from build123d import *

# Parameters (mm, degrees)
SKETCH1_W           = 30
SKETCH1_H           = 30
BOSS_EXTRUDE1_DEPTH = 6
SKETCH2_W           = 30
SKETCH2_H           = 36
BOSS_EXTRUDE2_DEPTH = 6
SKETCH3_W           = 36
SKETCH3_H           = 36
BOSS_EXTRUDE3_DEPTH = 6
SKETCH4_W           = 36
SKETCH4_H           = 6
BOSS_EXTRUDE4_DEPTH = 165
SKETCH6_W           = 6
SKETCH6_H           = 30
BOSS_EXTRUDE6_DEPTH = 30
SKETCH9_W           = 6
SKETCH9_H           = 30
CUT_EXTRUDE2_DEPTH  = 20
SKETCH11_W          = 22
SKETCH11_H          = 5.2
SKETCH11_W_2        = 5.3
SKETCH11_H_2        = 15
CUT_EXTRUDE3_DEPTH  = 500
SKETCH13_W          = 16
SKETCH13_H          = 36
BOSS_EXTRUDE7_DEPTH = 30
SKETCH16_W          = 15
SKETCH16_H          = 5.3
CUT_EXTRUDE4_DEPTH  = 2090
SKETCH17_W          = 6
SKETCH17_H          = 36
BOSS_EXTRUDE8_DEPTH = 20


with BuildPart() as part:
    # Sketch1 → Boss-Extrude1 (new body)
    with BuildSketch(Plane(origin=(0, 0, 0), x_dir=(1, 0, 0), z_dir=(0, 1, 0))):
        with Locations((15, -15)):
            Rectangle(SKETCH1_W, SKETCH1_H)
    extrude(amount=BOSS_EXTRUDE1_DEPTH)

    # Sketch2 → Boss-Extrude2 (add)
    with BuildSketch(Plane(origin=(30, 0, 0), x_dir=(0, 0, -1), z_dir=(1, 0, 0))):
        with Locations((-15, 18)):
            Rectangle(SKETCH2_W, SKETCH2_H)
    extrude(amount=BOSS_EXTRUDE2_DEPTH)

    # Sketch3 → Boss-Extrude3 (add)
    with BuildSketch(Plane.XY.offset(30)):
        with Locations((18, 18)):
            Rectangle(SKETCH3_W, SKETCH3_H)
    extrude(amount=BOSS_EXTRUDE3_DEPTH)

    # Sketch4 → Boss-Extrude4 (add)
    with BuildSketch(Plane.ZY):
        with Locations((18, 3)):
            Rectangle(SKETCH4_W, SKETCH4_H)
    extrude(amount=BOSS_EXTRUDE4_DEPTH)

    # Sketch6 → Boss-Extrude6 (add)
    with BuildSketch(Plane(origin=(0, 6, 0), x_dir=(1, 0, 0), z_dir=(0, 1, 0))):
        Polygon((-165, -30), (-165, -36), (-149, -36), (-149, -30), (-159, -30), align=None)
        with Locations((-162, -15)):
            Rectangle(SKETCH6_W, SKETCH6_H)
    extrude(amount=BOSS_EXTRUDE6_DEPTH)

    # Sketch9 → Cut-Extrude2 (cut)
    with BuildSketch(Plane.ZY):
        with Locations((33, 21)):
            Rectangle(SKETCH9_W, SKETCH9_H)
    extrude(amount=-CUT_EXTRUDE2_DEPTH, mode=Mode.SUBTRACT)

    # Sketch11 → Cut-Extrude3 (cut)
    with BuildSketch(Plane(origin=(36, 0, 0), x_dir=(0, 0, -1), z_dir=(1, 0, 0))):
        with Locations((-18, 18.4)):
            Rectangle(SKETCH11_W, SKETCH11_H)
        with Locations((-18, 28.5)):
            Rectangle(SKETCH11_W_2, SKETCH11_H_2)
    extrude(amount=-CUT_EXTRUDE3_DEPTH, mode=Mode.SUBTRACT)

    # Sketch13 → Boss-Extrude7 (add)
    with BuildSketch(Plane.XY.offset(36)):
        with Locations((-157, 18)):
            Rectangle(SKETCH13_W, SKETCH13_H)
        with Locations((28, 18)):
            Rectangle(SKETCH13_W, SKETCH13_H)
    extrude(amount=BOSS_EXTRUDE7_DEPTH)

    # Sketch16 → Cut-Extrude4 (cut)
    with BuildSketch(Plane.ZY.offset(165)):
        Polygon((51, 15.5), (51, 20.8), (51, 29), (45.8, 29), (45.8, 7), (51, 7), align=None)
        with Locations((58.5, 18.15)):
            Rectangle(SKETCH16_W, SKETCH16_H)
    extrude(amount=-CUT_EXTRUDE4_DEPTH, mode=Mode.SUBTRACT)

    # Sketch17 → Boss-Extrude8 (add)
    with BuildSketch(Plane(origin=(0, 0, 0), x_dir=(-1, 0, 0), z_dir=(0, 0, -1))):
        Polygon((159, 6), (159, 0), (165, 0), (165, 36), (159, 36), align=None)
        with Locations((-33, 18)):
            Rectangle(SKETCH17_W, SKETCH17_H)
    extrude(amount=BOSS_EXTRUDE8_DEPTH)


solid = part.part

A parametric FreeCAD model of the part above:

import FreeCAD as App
import Part
import Sketcher
from FreeCAD import Vector
Q = App.Units.Quantity

doc = App.newDocument("Part")
params = doc.addObject("Spreadsheet::Sheet", "Params")
for row, (alias, value) in enumerate([
    ("sketch1_width", "30 mm"),
    ("pad1_length", "6 mm"),
    ("sketch2_width", "36 mm"),
    ("sketch2_height", "30 mm"),
    ("pad2_length", "6 mm"),
    ("sketch3_width", "36 mm"),
    ("pad3_length", "6 mm"),
    ("sketch4_width", "6 mm"),
    ("sketch4_height", "36 mm"),
    ("pad4_length", "165 mm"),
    ("sketch5_width", "16 mm"),
    ("sketch5_width2", "10 mm"),
    ("sketch5_height", "30 mm"),
    ("pad5_length", "30 mm"),
    ("sketch6_width", "30 mm"),
    ("sketch6_height", "6 mm"),
    ("pocket1_length", "20 mm"),
    ("sketch7_width", "15 mm"),
    ("sketch7_height", "22 mm"),
    ("sketch7_width2", "5.2 mm"),
    ("sketch7_height2", "5.3 mm"),
    ("pocket2_length", "500 mm"),
    ("sketch8_width", "16 mm"),
    ("sketch8_height", "36 mm"),
    ("pad6_length", "30 mm"),
    ("sketch9_width", "22 mm"),
    ("sketch9_height", "15 mm"),
    ("sketch9_width2", "8.5 mm"),
    ("sketch9_width3", "5.3 mm"),
    ("sketch9_height2", "5.2 mm"),
    ("pocket3_length", "2090 mm"),
    ("sketch10_width", "6 mm"),
    ("sketch10_height", "36 mm"),
    ("pad7_length", "20 mm"),
], start=1):
    params.set(f"A{row}", alias)
    params.set(f"B{row}", "=" + value)
    params.setAlias(f"B{row}", alias)

body = doc.addObject("PartDesign::Body", "Body")

# Sketch on XZ plane
sketch1 = body.newObject("Sketcher::SketchObject", "Sketch")
sketch1.AttachmentSupport = (doc.getObject("XZ_Plane"), [""])
sketch1.MapMode = "FlatFace"
sketch1.addGeometry([
    Part.LineSegment(Vector(0, 0, 0), Vector(0, 30, 0)),
    Part.LineSegment(Vector(0, 30, 0), Vector(30, 30, 0)),
    Part.LineSegment(Vector(30, 30, 0), Vector(30, 0, 0)),
    Part.LineSegment(Vector(30, 0, 0), Vector(0, 0, 0)),
], False)
sketch1.addConstraint([
    Sketcher.Constraint("Coincident", 0, 2, 1, 1),
    Sketcher.Constraint("Coincident", 1, 2, 2, 1),
    Sketcher.Constraint("Coincident", 2, 2, 3, 1),
    Sketcher.Constraint("Coincident", 3, 2, 0, 1),
    Sketcher.Constraint("Vertical", 0),
    Sketcher.Constraint("Horizontal", 1),
    Sketcher.Constraint("Vertical", 2),
    Sketcher.Constraint("Horizontal", 3),
    Sketcher.Constraint("Coincident", 3, 2, -1, 1),
    Sketcher.Constraint("Equal", 3, 0),
    Sketcher.Constraint("DistanceX", 1, 1, 1, 2, Q("30 mm")),
])
sketch1.setExpression("Constraints[10]", "Params.sketch1_width")
pad1 = body.newObject("PartDesign::Pad", "Pad")
pad1.Profile = sketch1
pad1.setExpression("Length", "Params.pad1_length")
pad1.Reversed = True

# Sketch on YZ plane
sketch2 = body.newObject("Sketcher::SketchObject", "Sketch001")
sketch2.AttachmentSupport = (doc.getObject("YZ_Plane"), [""])
sketch2.MapMode = "FlatFace"
sketch2.AttachmentOffset = App.Placement(Vector(0, 0, 30), App.Rotation())
sketch2.addGeometry([
    Part.LineSegment(Vector(36, 30, 0), Vector(0, 30, 0)),
    Part.LineSegment(Vector(0, 30, 0), Vector(0, 0, 0)),
    Part.LineSegment(Vector(0, 0, 0), Vector(36, 0, 0)),
    Part.LineSegment(Vector(36, 0, 0), Vector(36, 30, 0)),
], False)
sketch2.addConstraint([
    Sketcher.Constraint("Coincident", 0, 2, 1, 1),
    Sketcher.Constraint("Coincident", 1, 2, 2, 1),
    Sketcher.Constraint("Coincident", 2, 2, 3, 1),
    Sketcher.Constraint("Coincident", 3, 2, 0, 1),
    Sketcher.Constraint("Horizontal", 0),
    Sketcher.Constraint("Vertical", 1),
    Sketcher.Constraint("Horizontal", 2),
    Sketcher.Constraint("Vertical", 3),
    Sketcher.Constraint("Coincident", 1, 2, -1, 1),
    Sketcher.Constraint("DistanceX", 0, 2, 0, 1, Q("36 mm")),
    Sketcher.Constraint("DistanceY", 1, 2, 1, 1, Q("30 mm")),
])
sketch2.setExpression("Constraints[9]", "Params.sketch2_width")
sketch2.setExpression("Constraints[10]", "Params.sketch2_height")
pad2 = body.newObject("PartDesign::Pad", "Pad001")
pad2.Profile = sketch2
pad2.setExpression("Length", "Params.pad2_length")

# Sketch on XY plane
sketch3 = body.newObject("Sketcher::SketchObject", "Sketch002")
sketch3.AttachmentSupport = (doc.getObject("XY_Plane"), [""])
sketch3.MapMode = "FlatFace"
sketch3.AttachmentOffset = App.Placement(Vector(0, 0, 30), App.Rotation())
sketch3.addGeometry([
    Part.LineSegment(Vector(0, 36, 0), Vector(0, 0, 0)),
    Part.LineSegment(Vector(0, 0, 0), Vector(36, 0, 0)),
    Part.LineSegment(Vector(36, 0, 0), Vector(36, 36, 0)),
    Part.LineSegment(Vector(36, 36, 0), Vector(0, 36, 0)),
], False)
sketch3.addConstraint([
    Sketcher.Constraint("Coincident", 0, 2, 1, 1),
    Sketcher.Constraint("Coincident", 1, 2, 2, 1),
    Sketcher.Constraint("Coincident", 2, 2, 3, 1),
    Sketcher.Constraint("Coincident", 3, 2, 0, 1),
    Sketcher.Constraint("Vertical", 0),
    Sketcher.Constraint("Horizontal", 1),
    Sketcher.Constraint("Vertical", 2),
    Sketcher.Constraint("Horizontal", 3),
    Sketcher.Constraint("Coincident", 0, 2, -1, 1),
    Sketcher.Constraint("Equal", 3, 0),
    Sketcher.Constraint("DistanceX", 1, 1, 1, 2, Q("36 mm")),
])
sketch3.setExpression("Constraints[10]", "Params.sketch3_width")
pad3 = body.newObject("PartDesign::Pad", "Pad002")
pad3.Profile = sketch3
pad3.setExpression("Length", "Params.pad3_length")

# Sketch on YZ plane
sketch4 = body.newObject("Sketcher::SketchObject", "Sketch003")
sketch4.AttachmentSupport = (doc.getObject("YZ_Plane"), [""])
sketch4.MapMode = "FlatFace"
sketch4.addGeometry([
    Part.LineSegment(Vector(6, 0, 0), Vector(0, 0, 0)),
    Part.LineSegment(Vector(0, 0, 0), Vector(0, 36, 0)),
    Part.LineSegment(Vector(0, 36, 0), Vector(6, 36, 0)),
    Part.LineSegment(Vector(6, 36, 0), Vector(6, 0, 0)),
], False)
sketch4.addConstraint([
    Sketcher.Constraint("Coincident", 0, 2, 1, 1),
    Sketcher.Constraint("Coincident", 1, 2, 2, 1),
    Sketcher.Constraint("Coincident", 2, 2, 3, 1),
    Sketcher.Constraint("Coincident", 3, 2, 0, 1),
    Sketcher.Constraint("Horizontal", 0),
    Sketcher.Constraint("Vertical", 1),
    Sketcher.Constraint("Horizontal", 2),
    Sketcher.Constraint("Vertical", 3),
    Sketcher.Constraint("Coincident", 0, 2, -1, 1),
    Sketcher.Constraint("DistanceX", 0, 2, 0, 1, Q("6 mm")),
    Sketcher.Constraint("DistanceY", 1, 1, 1, 2, Q("36 mm")),
])
sketch4.setExpression("Constraints[9]", "Params.sketch4_width")
sketch4.setExpression("Constraints[10]", "Params.sketch4_height")
pad4 = body.newObject("PartDesign::Pad", "Pad003")
pad4.Profile = sketch4
pad4.setExpression("Length", "Params.pad4_length")
pad4.Reversed = True

# Sketch on XZ plane
sketch5 = body.newObject("Sketcher::SketchObject", "Sketch004")
sketch5.AttachmentSupport = (doc.getObject("XZ_Plane"), [""])
sketch5.MapMode = "FlatFace"
sketch5.AttachmentOffset = App.Placement(Vector(0, 0, -6), App.Rotation())
sketch5.addGeometry([
    Part.LineSegment(Vector(-165, 36, 0), Vector(-149, 36, 0)),  # 0
    Part.LineSegment(Vector(-149, 36, 0), Vector(-149, 30, 0)),  # 1
    Part.LineSegment(Vector(-149, 30, 0), Vector(-159, 30, 0)),  # 2
    Part.LineSegment(Vector(-159, 30, 0), Vector(-159, 0, 0)),  # 3
    Part.LineSegment(Vector(-159, 0, 0), Vector(-165, 0, 0)),  # 4
    Part.LineSegment(Vector(-165, 0, 0), Vector(-165, 36, 0)),  # 5
], False)
sketch5.addConstraint([
    Sketcher.Constraint("Coincident", 0, 2, 1, 1),
    Sketcher.Constraint("Coincident", 1, 2, 2, 1),
    Sketcher.Constraint("Coincident", 2, 2, 3, 1),
    Sketcher.Constraint("Coincident", 3, 2, 4, 1),
    Sketcher.Constraint("Coincident", 4, 2, 5, 1),
    Sketcher.Constraint("Coincident", 5, 2, 0, 1),
    Sketcher.Constraint("Horizontal", 0),
    Sketcher.Constraint("Vertical", 1),
    Sketcher.Constraint("Horizontal", 2),
    Sketcher.Constraint("Vertical", 3),
    Sketcher.Constraint("Horizontal", 4),
    Sketcher.Constraint("Vertical", 5),
    Sketcher.Constraint("PointOnObject", 3, 2, -1),
    Sketcher.Constraint("Equal", 4, 1),
    Sketcher.Constraint("DistanceX", 0, 1, 0, 2, Q("16 mm")),
    Sketcher.Constraint("DistanceX", 2, 2, 2, 1, Q("10 mm")),
    Sketcher.Constraint("DistanceY", 3, 2, 3, 1, Q("30 mm")),
    Sketcher.Constraint("DistanceX", 0, 2, -1, 1, Q("149 mm")),
])
sketch5.setExpression("Constraints[14]", "Params.sketch5_width")
sketch5.setExpression("Constraints[15]", "Params.sketch5_width2")
sketch5.setExpression("Constraints[16]", "Params.sketch5_height")
pad5 = body.newObject("PartDesign::Pad", "Pad004")
pad5.Profile = sketch5
pad5.setExpression("Length", "Params.pad5_length")
pad5.Reversed = True

# Sketch on YZ plane
sketch6 = body.newObject("Sketcher::SketchObject", "Sketch005")
sketch6.AttachmentSupport = (doc.getObject("YZ_Plane"), [""])
sketch6.MapMode = "FlatFace"
sketch6.addGeometry([
    Part.LineSegment(Vector(36, 30, 0), Vector(6, 30, 0)),
    Part.LineSegment(Vector(6, 30, 0), Vector(6, 36, 0)),
    Part.LineSegment(Vector(6, 36, 0), Vector(36, 36, 0)),
    Part.LineSegment(Vector(36, 36, 0), Vector(36, 30, 0)),
], False)
sketch6.addConstraint([
    Sketcher.Constraint("Coincident", 0, 2, 1, 1),
    Sketcher.Constraint("Coincident", 1, 2, 2, 1),
    Sketcher.Constraint("Coincident", 2, 2, 3, 1),
    Sketcher.Constraint("Coincident", 3, 2, 0, 1),
    Sketcher.Constraint("Horizontal", 0),
    Sketcher.Constraint("Vertical", 1),
    Sketcher.Constraint("Horizontal", 2),
    Sketcher.Constraint("Vertical", 3),
    Sketcher.Constraint("DistanceX", 0, 2, 0, 1, Q("30 mm")),
    Sketcher.Constraint("DistanceY", 1, 1, 1, 2, Q("6 mm")),
    Sketcher.Constraint("DistanceX", -1, 1, 0, 2, Q("6 mm")),
    Sketcher.Constraint("DistanceY", -1, 1, 0, 2, Q("30 mm")),
])
sketch6.setExpression("Constraints[8]", "Params.sketch6_width")
sketch6.setExpression("Constraints[9]", "Params.sketch6_height")
pocket1 = body.newObject("PartDesign::Pocket", "Pocket")
pocket1.Profile = sketch6
pocket1.setExpression("Length", "Params.pocket1_length")
pocket1.Reversed = True

# Sketch on YZ plane
sketch7 = body.newObject("Sketcher::SketchObject", "Sketch006")
sketch7.AttachmentSupport = (doc.getObject("YZ_Plane"), [""])
sketch7.MapMode = "FlatFace"
sketch7.AttachmentOffset = App.Placement(Vector(0, 0, 36), App.Rotation())
sketch7.addGeometry([
    Part.LineSegment(Vector(21, 29, 0), Vector(16, 29, 0)),  # 0
    Part.LineSegment(Vector(16, 29, 0), Vector(16, 7, 0)),  # 1
    Part.LineSegment(Vector(16, 7, 0), Vector(21, 7, 0)),  # 2
    Part.LineSegment(Vector(21, 7, 0), Vector(21, 15, 0)),  # 3
    Part.LineSegment(Vector(21, 15, 0), Vector(36, 15, 0)),  # 4
    Part.LineSegment(Vector(36, 15, 0), Vector(36, 21, 0)),  # 5
    Part.LineSegment(Vector(36, 21, 0), Vector(21, 21, 0)),  # 6
    Part.LineSegment(Vector(21, 21, 0), Vector(21, 29, 0)),  # 7
], False)
sketch7.addConstraint([
    Sketcher.Constraint("Coincident", 0, 2, 1, 1),
    Sketcher.Constraint("Coincident", 1, 2, 2, 1),
    Sketcher.Constraint("Coincident", 2, 2, 3, 1),
    Sketcher.Constraint("Coincident", 3, 2, 4, 1),
    Sketcher.Constraint("Coincident", 4, 2, 5, 1),
    Sketcher.Constraint("Coincident", 5, 2, 6, 1),
    Sketcher.Constraint("Coincident", 6, 2, 7, 1),
    Sketcher.Constraint("Coincident", 7, 2, 0, 1),
    Sketcher.Constraint("Horizontal", 0),
    Sketcher.Constraint("Vertical", 1),
    Sketcher.Constraint("Horizontal", 2),
    Sketcher.Constraint("Vertical", 3),
    Sketcher.Constraint("Horizontal", 4),
    Sketcher.Constraint("Vertical", 5),
    Sketcher.Constraint("Horizontal", 6),
    Sketcher.Constraint("Vertical", 7),
    Sketcher.Constraint("Vertical", 3, 2, 6, 2),
    Sketcher.Constraint("Equal", 3, 7),
    Sketcher.Constraint("DistanceX", 4, 1, 4, 2, Q("15 mm")),
    Sketcher.Constraint("DistanceY", 1, 2, 1, 1, Q("22 mm")),
    Sketcher.Constraint("DistanceX", 0, 2, 0, 1, Q("5.2 mm")),
    Sketcher.Constraint("DistanceY", 5, 1, 5, 2, Q("5.3 mm")),
    Sketcher.Constraint("DistanceY", -1, 1, 0, 2, Q("29 mm")),
    Sketcher.Constraint("DistanceX", -1, 1, 2, 2, Q("21 mm")),
])
sketch7.setExpression("Constraints[18]", "Params.sketch7_width")
sketch7.setExpression("Constraints[19]", "Params.sketch7_height")
sketch7.setExpression("Constraints[20]", "Params.sketch7_width2")
sketch7.setExpression("Constraints[21]", "Params.sketch7_height2")
pocket2 = body.newObject("PartDesign::Pocket", "Pocket001")
pocket2.Profile = sketch7
pocket2.setExpression("Length", "Params.pocket2_length")

# Sketch on XY plane
sketch8 = body.newObject("Sketcher::SketchObject", "Sketch007")
sketch8.AttachmentSupport = (doc.getObject("XY_Plane"), [""])
sketch8.MapMode = "FlatFace"
sketch8.AttachmentOffset = App.Placement(Vector(0, 0, 36), App.Rotation())
sketch8.addGeometry([
    Part.LineSegment(Vector(-165, 36, 0), Vector(-165, 0, 0)),  # 0
    Part.LineSegment(Vector(-165, 0, 0), Vector(-149, 0, 0)),  # 1
    Part.LineSegment(Vector(-149, 0, 0), Vector(-149, 36, 0)),  # 2
    Part.LineSegment(Vector(-149, 36, 0), Vector(-165, 36, 0)),  # 3
    Part.LineSegment(Vector(20, 36, 0), Vector(20, 0, 0)),  # 4
    Part.LineSegment(Vector(20, 0, 0), Vector(36, 0, 0)),  # 5
    Part.LineSegment(Vector(36, 0, 0), Vector(36, 36, 0)),  # 6
    Part.LineSegment(Vector(36, 36, 0), Vector(20, 36, 0)),  # 7
], False)
sketch8.addConstraint([
    Sketcher.Constraint("Coincident", 0, 2, 1, 1),
    Sketcher.Constraint("Coincident", 1, 2, 2, 1),
    Sketcher.Constraint("Coincident", 2, 2, 3, 1),
    Sketcher.Constraint("Coincident", 3, 2, 0, 1),
    Sketcher.Constraint("Coincident", 4, 2, 5, 1),
    Sketcher.Constraint("Coincident", 5, 2, 6, 1),
    Sketcher.Constraint("Coincident", 6, 2, 7, 1),
    Sketcher.Constraint("Coincident", 7, 2, 4, 1),
    Sketcher.Constraint("Vertical", 0),
    Sketcher.Constraint("Horizontal", 1),
    Sketcher.Constraint("Vertical", 2),
    Sketcher.Constraint("Horizontal", 3),
    Sketcher.Constraint("Vertical", 4),
    Sketcher.Constraint("Horizontal", 5),
    Sketcher.Constraint("Vertical", 6),
    Sketcher.Constraint("Horizontal", 7),
    Sketcher.Constraint("PointOnObject", 0, 2, -1),
    Sketcher.Constraint("PointOnObject", 4, 2, -1),
    Sketcher.Constraint("Horizontal", 3, 2, 6, 2),
    Sketcher.Constraint("Equal", 3, 5),
    Sketcher.Constraint("DistanceX", 1, 1, 1, 2, Q("16 mm")),
    Sketcher.Constraint("DistanceY", 0, 2, 0, 1, Q("36 mm")),
    Sketcher.Constraint("DistanceX", 0, 2, -1, 1, Q("165 mm")),
    Sketcher.Constraint("DistanceX", -1, 1, 4, 2, Q("20 mm")),
])
sketch8.setExpression("Constraints[20]", "Params.sketch8_width")
sketch8.setExpression("Constraints[21]", "Params.sketch8_height")
pad6 = body.newObject("PartDesign::Pad", "Pad005")
pad6.Profile = sketch8
pad6.setExpression("Length", "Params.pad6_length")

# Sketch on YZ plane
sketch9 = body.newObject("Sketcher::SketchObject", "Sketch008")
sketch9.AttachmentSupport = (doc.getObject("YZ_Plane"), [""])
sketch9.MapMode = "FlatFace"
sketch9.AttachmentOffset = App.Placement(Vector(0, 0, -165), App.Rotation())
sketch9.addGeometry([
    Part.LineSegment(Vector(29, 51, 0), Vector(29, 46, 0)),  # 0
    Part.LineSegment(Vector(29, 46, 0), Vector(7, 46, 0)),  # 1
    Part.LineSegment(Vector(7, 46, 0), Vector(7, 51, 0)),  # 2
    Part.LineSegment(Vector(7, 51, 0), Vector(16, 51, 0)),  # 3
    Part.LineSegment(Vector(16, 51, 0), Vector(16, 66, 0)),  # 4
    Part.LineSegment(Vector(16, 66, 0), Vector(21, 66, 0)),  # 5
    Part.LineSegment(Vector(21, 66, 0), Vector(21, 51, 0)),  # 6
    Part.LineSegment(Vector(21, 51, 0), Vector(29, 51, 0)),  # 7
], False)
sketch9.addConstraint([
    Sketcher.Constraint("Coincident", 0, 2, 1, 1),
    Sketcher.Constraint("Coincident", 1, 2, 2, 1),
    Sketcher.Constraint("Coincident", 2, 2, 3, 1),
    Sketcher.Constraint("Coincident", 3, 2, 4, 1),
    Sketcher.Constraint("Coincident", 4, 2, 5, 1),
    Sketcher.Constraint("Coincident", 5, 2, 6, 1),
    Sketcher.Constraint("Coincident", 6, 2, 7, 1),
    Sketcher.Constraint("Coincident", 7, 2, 0, 1),
    Sketcher.Constraint("Vertical", 0),
    Sketcher.Constraint("Horizontal", 1),
    Sketcher.Constraint("Vertical", 2),
    Sketcher.Constraint("Horizontal", 3),
    Sketcher.Constraint("Vertical", 4),
    Sketcher.Constraint("Horizontal", 5),
    Sketcher.Constraint("Vertical", 6),
    Sketcher.Constraint("Horizontal", 7),
    Sketcher.Constraint("Horizontal", 3, 2, 6, 2),
    Sketcher.Constraint("DistanceX", 1, 2, 1, 1, Q("22 mm")),
    Sketcher.Constraint("DistanceY", 4, 1, 4, 2, Q("15 mm")),
    Sketcher.Constraint("DistanceX", 3, 1, 3, 2, Q("8.5 mm")),
    Sketcher.Constraint("DistanceX", 5, 1, 5, 2, Q("5.3 mm")),
    Sketcher.Constraint("DistanceY", 0, 2, 0, 1, Q("5.2 mm")),
    Sketcher.Constraint("DistanceX", -1, 1, 0, 2, Q("29 mm")),
    Sketcher.Constraint("DistanceY", -1, 1, 2, 2, Q("51 mm")),
])
sketch9.setExpression("Constraints[17]", "Params.sketch9_width")
sketch9.setExpression("Constraints[18]", "Params.sketch9_height")
sketch9.setExpression("Constraints[19]", "Params.sketch9_width2")
sketch9.setExpression("Constraints[20]", "Params.sketch9_width3")
sketch9.setExpression("Constraints[21]", "Params.sketch9_height2")
pocket3 = body.newObject("PartDesign::Pocket", "Pocket002")
pocket3.Profile = sketch9
pocket3.setExpression("Length", "Params.pocket3_length")
pocket3.Reversed = True

# Sketch on XY plane
sketch10 = body.newObject("Sketcher::SketchObject", "Sketch009")
sketch10.AttachmentSupport = (doc.getObject("XY_Plane"), [""])
sketch10.MapMode = "FlatFace"
sketch10.addGeometry([
    Part.LineSegment(Vector(-159, 0, 0), Vector(-165, 0, 0)),  # 0
    Part.LineSegment(Vector(-165, 0, 0), Vector(-165, 36, 0)),  # 1
    Part.LineSegment(Vector(-165, 36, 0), Vector(-159, 36, 0)),  # 2
    Part.LineSegment(Vector(-159, 36, 0), Vector(-159, 0, 0)),  # 3
    Part.LineSegment(Vector(36, 36, 0), Vector(36, 0, 0)),  # 4
    Part.LineSegment(Vector(36, 0, 0), Vector(30, 0, 0)),  # 5
    Part.LineSegment(Vector(30, 0, 0), Vector(30, 36, 0)),  # 6
    Part.LineSegment(Vector(30, 36, 0), Vector(36, 36, 0)),  # 7
], False)
sketch10.addConstraint([
    Sketcher.Constraint("Coincident", 0, 2, 1, 1),
    Sketcher.Constraint("Coincident", 1, 2, 2, 1),
    Sketcher.Constraint("Coincident", 2, 2, 3, 1),
    Sketcher.Constraint("Coincident", 3, 2, 0, 1),
    Sketcher.Constraint("Coincident", 4, 2, 5, 1),
    Sketcher.Constraint("Coincident", 5, 2, 6, 1),
    Sketcher.Constraint("Coincident", 6, 2, 7, 1),
    Sketcher.Constraint("Coincident", 7, 2, 4, 1),
    Sketcher.Constraint("Horizontal", 0),
    Sketcher.Constraint("Vertical", 1),
    Sketcher.Constraint("Horizontal", 2),
    Sketcher.Constraint("Vertical", 3),
    Sketcher.Constraint("Vertical", 4),
    Sketcher.Constraint("Horizontal", 5),
    Sketcher.Constraint("Vertical", 6),
    Sketcher.Constraint("Horizontal", 7),
    Sketcher.Constraint("PointOnObject", 0, 2, -1),
    Sketcher.Constraint("PointOnObject", 4, 2, -1),
    Sketcher.Constraint("Horizontal", 2, 2, 6, 2),
    Sketcher.Constraint("Equal", 2, 5),
    Sketcher.Constraint("DistanceX", 0, 2, 0, 1, Q("6 mm")),
    Sketcher.Constraint("DistanceY", 1, 1, 1, 2, Q("36 mm")),
    Sketcher.Constraint("DistanceX", 0, 2, -1, 1, Q("165 mm")),
    Sketcher.Constraint("DistanceX", -1, 1, 4, 2, Q("36 mm")),
])
sketch10.setExpression("Constraints[20]", "Params.sketch10_width")
sketch10.setExpression("Constraints[21]", "Params.sketch10_height")
pad7 = body.newObject("PartDesign::Pad", "Pad006")
pad7.Profile = sketch10
pad7.setExpression("Length", "Params.pad7_length")
pad7.Reversed = True

doc.recompute()
